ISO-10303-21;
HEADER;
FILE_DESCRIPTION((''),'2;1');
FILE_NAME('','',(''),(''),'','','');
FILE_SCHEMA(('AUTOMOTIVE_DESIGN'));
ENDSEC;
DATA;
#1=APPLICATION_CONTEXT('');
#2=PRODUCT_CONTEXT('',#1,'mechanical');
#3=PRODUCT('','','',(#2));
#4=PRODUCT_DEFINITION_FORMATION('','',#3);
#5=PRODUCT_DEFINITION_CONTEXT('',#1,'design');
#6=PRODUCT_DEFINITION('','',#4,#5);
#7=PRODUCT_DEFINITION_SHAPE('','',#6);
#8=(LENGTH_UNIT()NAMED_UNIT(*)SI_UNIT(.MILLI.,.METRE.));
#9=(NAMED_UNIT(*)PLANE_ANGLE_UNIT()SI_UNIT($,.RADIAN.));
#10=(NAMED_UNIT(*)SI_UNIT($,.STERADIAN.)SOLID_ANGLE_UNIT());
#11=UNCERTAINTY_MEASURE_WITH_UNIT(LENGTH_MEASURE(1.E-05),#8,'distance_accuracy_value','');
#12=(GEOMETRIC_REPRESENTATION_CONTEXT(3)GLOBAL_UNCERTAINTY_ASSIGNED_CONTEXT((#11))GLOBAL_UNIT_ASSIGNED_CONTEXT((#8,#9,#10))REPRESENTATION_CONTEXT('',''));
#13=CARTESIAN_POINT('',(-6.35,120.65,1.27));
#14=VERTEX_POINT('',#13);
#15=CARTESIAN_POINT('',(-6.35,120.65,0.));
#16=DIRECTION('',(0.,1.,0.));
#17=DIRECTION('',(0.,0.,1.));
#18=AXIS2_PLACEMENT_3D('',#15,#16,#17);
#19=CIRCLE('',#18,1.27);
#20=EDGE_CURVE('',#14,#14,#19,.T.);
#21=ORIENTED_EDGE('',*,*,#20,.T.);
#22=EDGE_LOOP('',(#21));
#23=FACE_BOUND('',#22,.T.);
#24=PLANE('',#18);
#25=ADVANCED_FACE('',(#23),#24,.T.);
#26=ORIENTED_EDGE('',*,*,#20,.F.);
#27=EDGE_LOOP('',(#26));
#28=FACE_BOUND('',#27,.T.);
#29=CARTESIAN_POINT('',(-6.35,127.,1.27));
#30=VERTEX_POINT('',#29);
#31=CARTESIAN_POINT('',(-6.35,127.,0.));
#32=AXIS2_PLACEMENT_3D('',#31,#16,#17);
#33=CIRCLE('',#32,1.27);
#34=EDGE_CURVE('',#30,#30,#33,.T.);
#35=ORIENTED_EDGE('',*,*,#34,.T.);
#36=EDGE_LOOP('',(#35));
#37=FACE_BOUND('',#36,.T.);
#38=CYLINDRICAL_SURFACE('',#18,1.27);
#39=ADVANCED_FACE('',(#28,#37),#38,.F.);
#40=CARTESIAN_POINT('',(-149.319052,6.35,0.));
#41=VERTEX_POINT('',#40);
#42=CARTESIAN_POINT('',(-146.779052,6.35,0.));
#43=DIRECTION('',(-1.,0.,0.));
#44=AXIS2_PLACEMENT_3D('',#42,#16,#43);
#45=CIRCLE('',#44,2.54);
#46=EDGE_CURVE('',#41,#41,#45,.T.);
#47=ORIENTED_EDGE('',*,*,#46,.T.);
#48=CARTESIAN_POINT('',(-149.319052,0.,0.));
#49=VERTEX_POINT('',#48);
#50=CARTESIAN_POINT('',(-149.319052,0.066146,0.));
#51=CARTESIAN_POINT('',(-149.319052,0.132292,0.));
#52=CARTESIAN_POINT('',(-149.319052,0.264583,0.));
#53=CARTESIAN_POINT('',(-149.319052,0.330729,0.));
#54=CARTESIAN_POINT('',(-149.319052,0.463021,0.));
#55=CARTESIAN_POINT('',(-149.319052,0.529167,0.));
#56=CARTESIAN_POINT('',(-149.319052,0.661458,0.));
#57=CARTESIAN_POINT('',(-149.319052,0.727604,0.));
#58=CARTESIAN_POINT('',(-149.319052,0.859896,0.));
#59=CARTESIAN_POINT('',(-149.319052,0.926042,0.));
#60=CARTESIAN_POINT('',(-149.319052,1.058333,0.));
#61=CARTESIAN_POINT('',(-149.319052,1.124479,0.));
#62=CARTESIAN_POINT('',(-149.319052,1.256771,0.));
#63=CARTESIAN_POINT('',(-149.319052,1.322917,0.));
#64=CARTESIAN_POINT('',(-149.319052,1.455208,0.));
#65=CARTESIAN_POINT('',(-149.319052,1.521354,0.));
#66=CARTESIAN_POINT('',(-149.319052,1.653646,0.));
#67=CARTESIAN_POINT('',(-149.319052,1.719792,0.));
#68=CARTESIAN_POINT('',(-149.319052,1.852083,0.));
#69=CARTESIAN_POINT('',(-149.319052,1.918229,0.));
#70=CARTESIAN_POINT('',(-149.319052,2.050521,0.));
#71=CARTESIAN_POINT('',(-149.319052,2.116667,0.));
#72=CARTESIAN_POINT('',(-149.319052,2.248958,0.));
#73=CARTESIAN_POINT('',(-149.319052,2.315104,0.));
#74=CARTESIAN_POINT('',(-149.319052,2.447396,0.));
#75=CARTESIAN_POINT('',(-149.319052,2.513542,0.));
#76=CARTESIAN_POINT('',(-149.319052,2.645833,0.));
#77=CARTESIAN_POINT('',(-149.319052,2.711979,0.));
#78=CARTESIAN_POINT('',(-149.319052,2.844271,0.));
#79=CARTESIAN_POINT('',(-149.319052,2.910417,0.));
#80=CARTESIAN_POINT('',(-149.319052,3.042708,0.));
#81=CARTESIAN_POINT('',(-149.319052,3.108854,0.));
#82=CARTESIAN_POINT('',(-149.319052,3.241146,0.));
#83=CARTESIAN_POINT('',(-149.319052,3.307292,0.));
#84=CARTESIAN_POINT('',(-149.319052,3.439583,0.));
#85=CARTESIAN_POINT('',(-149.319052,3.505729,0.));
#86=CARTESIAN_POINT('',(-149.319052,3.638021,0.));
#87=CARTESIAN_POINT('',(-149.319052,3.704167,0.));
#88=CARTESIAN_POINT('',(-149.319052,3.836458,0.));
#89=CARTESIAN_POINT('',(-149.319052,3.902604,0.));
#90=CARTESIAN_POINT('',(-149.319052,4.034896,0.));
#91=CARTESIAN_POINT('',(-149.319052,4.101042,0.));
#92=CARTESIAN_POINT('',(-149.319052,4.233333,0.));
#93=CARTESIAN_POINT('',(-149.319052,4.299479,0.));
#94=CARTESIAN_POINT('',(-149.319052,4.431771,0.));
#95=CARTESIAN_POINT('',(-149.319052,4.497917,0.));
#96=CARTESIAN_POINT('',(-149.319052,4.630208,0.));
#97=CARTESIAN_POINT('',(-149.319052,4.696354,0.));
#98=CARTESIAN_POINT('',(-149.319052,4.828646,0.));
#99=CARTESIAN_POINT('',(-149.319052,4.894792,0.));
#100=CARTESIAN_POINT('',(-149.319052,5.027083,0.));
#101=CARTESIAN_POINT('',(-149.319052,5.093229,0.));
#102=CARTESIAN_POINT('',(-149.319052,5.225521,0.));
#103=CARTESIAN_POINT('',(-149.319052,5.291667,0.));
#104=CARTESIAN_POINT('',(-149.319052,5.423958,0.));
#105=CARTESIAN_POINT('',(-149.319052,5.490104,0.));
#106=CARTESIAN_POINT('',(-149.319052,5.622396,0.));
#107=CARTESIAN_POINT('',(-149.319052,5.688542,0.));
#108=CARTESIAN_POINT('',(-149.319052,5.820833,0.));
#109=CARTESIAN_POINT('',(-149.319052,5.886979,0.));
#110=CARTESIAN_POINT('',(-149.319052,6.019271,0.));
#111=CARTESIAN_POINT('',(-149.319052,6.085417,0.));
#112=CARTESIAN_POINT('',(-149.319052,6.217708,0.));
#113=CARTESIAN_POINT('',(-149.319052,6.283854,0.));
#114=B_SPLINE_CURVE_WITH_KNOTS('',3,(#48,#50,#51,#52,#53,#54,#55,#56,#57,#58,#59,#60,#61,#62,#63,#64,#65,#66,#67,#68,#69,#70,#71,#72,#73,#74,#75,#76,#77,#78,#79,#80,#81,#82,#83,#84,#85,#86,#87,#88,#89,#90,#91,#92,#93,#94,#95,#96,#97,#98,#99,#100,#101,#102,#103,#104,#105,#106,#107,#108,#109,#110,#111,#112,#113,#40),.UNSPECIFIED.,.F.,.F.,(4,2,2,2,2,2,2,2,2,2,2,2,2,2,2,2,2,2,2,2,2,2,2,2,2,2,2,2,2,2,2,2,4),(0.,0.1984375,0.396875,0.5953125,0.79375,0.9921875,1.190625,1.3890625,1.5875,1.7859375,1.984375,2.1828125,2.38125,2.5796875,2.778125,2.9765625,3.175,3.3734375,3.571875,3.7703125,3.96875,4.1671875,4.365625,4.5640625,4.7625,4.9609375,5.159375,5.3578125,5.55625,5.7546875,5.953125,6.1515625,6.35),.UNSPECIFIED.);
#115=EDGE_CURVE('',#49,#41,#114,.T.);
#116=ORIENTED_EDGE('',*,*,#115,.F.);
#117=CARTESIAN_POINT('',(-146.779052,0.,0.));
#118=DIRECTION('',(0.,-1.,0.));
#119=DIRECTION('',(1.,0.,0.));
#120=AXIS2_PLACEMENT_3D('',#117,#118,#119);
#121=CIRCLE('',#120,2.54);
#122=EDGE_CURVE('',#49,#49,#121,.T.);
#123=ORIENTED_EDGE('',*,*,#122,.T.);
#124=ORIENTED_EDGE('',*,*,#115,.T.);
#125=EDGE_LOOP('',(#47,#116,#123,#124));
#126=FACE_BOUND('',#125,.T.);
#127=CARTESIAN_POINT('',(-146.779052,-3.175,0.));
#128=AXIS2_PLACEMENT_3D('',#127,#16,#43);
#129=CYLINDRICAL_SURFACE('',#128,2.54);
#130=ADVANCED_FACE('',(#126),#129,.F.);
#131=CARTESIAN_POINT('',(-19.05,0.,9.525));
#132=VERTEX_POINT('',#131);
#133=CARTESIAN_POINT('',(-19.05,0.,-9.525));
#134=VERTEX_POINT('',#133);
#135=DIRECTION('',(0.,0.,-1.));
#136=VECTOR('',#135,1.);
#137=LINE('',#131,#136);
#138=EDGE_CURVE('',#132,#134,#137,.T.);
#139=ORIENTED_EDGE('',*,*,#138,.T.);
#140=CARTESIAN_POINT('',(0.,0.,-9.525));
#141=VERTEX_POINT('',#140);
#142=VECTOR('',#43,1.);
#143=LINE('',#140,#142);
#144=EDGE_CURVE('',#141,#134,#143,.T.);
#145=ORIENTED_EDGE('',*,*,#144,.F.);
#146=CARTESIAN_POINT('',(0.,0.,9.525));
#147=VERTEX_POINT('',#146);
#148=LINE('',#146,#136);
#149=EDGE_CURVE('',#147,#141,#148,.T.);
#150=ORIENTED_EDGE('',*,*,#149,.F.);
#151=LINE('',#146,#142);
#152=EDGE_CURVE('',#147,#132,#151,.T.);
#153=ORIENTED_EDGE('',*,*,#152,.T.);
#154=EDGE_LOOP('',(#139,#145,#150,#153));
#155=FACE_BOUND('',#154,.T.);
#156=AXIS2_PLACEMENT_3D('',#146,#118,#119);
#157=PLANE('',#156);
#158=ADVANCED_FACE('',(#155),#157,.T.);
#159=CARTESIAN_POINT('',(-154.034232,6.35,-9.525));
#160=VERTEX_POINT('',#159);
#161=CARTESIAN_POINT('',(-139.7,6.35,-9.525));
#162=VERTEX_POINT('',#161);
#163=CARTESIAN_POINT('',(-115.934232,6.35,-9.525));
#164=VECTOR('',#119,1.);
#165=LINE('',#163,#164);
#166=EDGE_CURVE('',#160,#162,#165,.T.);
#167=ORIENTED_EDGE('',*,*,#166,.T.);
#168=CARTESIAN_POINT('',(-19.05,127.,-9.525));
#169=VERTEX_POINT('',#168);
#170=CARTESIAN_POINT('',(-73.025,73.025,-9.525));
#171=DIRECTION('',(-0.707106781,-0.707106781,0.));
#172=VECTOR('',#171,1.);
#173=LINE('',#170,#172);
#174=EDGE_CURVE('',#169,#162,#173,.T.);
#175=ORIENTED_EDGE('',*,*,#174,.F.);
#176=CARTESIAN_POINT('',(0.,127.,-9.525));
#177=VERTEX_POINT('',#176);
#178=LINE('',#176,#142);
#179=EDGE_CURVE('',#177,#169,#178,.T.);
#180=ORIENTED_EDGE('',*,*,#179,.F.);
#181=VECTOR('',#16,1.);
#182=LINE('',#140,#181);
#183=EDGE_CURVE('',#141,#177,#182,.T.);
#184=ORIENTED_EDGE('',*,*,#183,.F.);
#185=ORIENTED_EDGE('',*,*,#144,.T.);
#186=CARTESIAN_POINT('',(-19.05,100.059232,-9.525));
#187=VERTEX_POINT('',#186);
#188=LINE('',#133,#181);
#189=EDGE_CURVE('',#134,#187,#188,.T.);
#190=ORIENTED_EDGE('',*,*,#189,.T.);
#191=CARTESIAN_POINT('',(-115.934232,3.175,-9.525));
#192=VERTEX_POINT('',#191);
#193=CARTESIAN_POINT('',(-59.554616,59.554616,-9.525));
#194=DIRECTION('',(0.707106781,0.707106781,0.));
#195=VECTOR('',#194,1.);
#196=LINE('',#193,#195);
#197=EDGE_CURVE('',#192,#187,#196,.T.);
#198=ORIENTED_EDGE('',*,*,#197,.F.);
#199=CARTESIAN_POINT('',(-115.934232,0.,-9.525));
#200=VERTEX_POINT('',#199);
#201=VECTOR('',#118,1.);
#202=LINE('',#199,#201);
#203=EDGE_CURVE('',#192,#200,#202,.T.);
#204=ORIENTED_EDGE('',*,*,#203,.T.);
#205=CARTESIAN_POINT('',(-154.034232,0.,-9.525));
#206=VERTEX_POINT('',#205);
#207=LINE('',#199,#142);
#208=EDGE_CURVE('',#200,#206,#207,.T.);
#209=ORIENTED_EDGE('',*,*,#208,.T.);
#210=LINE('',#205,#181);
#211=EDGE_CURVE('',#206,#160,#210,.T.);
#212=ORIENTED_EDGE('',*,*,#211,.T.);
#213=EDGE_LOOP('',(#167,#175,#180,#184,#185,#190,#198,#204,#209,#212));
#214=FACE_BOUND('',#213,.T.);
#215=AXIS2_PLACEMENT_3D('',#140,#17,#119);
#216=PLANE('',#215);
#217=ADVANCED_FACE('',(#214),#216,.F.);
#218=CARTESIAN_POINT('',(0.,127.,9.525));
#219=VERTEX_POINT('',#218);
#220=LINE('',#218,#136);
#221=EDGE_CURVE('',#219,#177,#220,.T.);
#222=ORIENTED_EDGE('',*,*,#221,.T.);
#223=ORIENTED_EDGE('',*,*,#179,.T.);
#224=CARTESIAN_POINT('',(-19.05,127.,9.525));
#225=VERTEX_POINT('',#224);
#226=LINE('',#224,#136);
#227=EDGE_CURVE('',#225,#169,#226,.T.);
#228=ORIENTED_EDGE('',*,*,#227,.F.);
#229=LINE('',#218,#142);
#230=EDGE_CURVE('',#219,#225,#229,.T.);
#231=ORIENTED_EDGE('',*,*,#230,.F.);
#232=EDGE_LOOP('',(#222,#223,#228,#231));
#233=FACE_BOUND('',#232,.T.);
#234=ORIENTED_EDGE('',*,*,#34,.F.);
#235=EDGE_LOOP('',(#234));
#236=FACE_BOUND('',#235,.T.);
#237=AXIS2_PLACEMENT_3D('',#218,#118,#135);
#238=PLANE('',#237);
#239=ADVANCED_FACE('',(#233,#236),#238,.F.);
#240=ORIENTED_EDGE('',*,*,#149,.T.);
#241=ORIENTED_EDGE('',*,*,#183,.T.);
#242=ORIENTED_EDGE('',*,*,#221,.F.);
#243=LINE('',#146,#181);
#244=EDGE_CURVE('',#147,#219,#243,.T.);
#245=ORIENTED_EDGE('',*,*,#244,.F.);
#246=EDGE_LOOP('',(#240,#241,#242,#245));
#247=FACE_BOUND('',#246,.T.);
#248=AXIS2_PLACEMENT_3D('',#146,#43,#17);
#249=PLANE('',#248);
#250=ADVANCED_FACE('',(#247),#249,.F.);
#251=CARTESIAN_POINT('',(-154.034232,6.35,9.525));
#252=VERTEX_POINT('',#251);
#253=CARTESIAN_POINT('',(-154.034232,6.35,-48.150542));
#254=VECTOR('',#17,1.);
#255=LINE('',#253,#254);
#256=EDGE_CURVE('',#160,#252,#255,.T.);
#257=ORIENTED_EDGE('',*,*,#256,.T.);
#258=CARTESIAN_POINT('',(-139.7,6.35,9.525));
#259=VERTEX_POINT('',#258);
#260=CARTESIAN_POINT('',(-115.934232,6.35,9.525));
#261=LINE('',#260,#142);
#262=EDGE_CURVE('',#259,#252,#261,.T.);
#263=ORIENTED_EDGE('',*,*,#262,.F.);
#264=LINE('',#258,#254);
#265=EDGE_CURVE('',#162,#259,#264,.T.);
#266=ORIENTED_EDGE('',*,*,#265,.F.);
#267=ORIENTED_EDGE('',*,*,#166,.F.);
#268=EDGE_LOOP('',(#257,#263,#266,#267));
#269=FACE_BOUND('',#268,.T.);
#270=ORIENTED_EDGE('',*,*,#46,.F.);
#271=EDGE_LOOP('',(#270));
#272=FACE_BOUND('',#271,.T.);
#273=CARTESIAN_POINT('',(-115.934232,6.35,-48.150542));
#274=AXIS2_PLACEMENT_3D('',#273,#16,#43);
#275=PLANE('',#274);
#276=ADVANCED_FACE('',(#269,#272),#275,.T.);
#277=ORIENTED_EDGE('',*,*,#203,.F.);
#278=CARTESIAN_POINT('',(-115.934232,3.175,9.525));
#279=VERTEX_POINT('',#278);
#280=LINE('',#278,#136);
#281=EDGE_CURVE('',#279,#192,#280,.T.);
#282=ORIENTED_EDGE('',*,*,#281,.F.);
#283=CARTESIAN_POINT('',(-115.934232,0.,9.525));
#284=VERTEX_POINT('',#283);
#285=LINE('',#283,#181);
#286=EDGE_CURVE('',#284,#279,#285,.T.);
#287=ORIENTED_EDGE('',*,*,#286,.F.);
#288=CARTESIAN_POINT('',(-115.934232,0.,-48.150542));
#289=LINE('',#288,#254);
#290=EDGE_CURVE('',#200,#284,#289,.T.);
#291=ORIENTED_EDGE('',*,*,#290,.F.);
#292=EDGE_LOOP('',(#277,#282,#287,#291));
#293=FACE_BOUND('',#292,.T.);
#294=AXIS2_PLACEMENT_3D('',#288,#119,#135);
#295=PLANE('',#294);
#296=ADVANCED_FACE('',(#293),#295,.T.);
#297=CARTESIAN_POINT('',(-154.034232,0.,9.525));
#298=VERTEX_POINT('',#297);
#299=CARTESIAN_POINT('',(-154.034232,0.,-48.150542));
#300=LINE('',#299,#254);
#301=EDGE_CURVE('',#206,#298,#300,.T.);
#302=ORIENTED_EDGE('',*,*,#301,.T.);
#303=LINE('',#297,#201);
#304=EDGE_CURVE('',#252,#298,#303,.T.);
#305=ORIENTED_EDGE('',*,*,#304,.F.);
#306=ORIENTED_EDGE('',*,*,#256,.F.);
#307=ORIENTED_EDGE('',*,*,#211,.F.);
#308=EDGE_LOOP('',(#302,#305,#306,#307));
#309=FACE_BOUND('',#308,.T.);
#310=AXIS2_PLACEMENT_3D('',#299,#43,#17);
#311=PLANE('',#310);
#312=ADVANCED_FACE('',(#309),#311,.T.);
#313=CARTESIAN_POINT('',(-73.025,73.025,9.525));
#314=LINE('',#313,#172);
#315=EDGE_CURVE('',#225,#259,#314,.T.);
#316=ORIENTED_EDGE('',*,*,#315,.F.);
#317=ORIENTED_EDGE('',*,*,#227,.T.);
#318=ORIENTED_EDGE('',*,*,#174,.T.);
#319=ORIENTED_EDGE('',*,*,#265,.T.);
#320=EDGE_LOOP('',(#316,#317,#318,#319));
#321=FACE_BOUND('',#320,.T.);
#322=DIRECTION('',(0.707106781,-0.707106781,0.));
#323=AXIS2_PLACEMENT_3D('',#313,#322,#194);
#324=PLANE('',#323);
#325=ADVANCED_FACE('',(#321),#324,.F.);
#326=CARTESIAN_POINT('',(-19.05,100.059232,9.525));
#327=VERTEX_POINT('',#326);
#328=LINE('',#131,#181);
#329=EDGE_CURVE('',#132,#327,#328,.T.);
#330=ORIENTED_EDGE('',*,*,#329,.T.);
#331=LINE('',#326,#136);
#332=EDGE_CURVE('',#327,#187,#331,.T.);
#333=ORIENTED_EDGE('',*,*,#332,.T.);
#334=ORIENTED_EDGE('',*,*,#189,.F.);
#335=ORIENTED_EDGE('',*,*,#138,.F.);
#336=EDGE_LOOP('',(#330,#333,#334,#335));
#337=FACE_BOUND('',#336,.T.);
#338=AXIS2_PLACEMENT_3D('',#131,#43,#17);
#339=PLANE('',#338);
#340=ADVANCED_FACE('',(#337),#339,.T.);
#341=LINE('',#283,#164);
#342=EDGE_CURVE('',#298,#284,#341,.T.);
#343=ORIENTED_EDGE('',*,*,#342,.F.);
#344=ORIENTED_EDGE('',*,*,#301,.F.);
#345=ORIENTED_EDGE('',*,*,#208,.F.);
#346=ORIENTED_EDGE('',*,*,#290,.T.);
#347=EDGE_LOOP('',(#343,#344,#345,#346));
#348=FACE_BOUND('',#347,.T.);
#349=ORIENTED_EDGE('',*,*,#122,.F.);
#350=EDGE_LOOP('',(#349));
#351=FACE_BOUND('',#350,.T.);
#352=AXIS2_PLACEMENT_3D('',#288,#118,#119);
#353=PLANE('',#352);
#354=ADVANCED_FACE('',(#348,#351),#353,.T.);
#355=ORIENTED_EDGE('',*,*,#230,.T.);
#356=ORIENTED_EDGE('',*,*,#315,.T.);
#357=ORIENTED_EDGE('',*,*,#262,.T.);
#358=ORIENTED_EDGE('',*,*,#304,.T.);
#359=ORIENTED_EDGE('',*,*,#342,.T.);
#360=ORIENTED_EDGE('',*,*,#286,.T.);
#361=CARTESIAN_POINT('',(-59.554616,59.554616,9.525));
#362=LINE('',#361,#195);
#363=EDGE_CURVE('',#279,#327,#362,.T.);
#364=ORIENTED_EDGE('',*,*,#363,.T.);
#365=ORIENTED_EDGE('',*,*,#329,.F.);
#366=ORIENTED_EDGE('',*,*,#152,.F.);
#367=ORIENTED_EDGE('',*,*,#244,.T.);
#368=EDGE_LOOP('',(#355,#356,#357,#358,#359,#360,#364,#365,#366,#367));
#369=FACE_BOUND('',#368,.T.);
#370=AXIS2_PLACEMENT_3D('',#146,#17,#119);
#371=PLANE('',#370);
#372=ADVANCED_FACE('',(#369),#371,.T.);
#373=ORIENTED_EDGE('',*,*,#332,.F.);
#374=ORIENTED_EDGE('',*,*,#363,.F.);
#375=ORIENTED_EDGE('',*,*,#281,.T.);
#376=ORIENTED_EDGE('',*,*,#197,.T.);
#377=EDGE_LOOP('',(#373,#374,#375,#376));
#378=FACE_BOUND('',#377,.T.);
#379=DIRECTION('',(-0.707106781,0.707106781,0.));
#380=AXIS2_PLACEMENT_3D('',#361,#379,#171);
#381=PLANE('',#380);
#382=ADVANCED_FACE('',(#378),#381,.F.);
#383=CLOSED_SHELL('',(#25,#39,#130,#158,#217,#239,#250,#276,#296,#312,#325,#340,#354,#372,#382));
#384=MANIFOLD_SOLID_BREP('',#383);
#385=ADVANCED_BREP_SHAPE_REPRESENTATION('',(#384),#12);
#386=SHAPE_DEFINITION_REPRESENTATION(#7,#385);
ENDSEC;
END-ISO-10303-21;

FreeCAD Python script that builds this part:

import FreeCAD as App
import Part
import Sketcher
from FreeCAD import Vector
Q = App.Units.Quantity


def add_polygon(sketch, points):
    """Adds a closed chain of lines whose ends are joined by coincident constraints."""
    first, n = sketch.GeometryCount, len(points)
    for a, b in zip(points, points[1:] + points[:1]):
        sketch.addGeometry(Part.LineSegment(App.Vector(*a, 0), App.Vector(*b, 0)), False)
    for i in range(n):
        sketch.addConstraint(Sketcher.Constraint("Coincident", first + i, 2, first + (i + 1) % n, 1))

doc = App.newDocument("Part")
body = doc.addObject("PartDesign::Body", "Body")

# Sketch on XY plane
sketch1 = doc.addObject("Sketcher::SketchObject", "Sketch")
body.addObject(sketch1)
sketch1.AttachmentSupport = (doc.XY_Plane, [""])
sketch1.MapMode = "FlatFace"
add_polygon(sketch1, [(0, 127), (-19, 127), (-143, 3), (-116, 3), (-19, 100), (-19, 0), (0, 0)])  # lines 0-6
sketch1.addConstraint(Sketcher.Constraint("Horizontal", 0))
sketch1.addConstraint(Sketcher.Constraint("Horizontal", 2))
sketch1.addConstraint(Sketcher.Constraint("Vertical", 4))
sketch1.addConstraint(Sketcher.Constraint("Horizontal", 5))
sketch1.addConstraint(Sketcher.Constraint("Vertical", 6))
sketch1.addConstraint(Sketcher.Constraint("Coincident", 5, 2, -1, 1))
sketch1.addConstraint(Sketcher.Constraint("Parallel", 1, 3))
sketch1.addConstraint(Sketcher.Constraint("Vertical", 0, 2, 3, 2))
sketch1.addConstraint(Sketcher.Constraint("DistanceY", 6, 1, 6, 2, Q("5 in")))
sketch1.addConstraint(Sketcher.Constraint("Angle", 1, Q("-135 deg")))
sketch1.addConstraint(Sketcher.Constraint("DistanceX", 0, 2, 0, 1, Q("0.75 in")))
sketch1.addConstraint(Sketcher.Constraint("DistanceX", 1, 2, -1, 1, Q("5.625 in")))
sketch1.addConstraint(Sketcher.Constraint("DistanceX", 2, 1, 2, 2, 26.940768))
pad1 = doc.addObject("PartDesign::Pad", "Pad")
body.addObject(pad1)
pad1.Profile = sketch1
pad1.Length = Q("0.75 in")
pad1.Midplane = True

# Sketch on XZ plane
sketch2 = doc.addObject("Sketcher::SketchObject", "Sketch001")
body.addObject(sketch2)
sketch2.AttachmentSupport = (doc.XZ_Plane, [""])
sketch2.MapMode = "FlatFace"
sketch2.AttachmentOffset = App.Placement(Vector(0, 0, -5 * 25.4), App.Rotation())
sketch2.addGeometry(Part.Circle(Vector(-6.3, 0, 0), Vector(0, 0, 1), 1.3), False)
sketch2.addConstraint(Sketcher.Constraint("PointOnObject", 0, 3, -1))
sketch2.addConstraint(Sketcher.Constraint("Diameter", 0, Q("0.1 in")))
sketch2.addConstraint(Sketcher.Constraint("DistanceX", 0, 3, -1, 1, Q("0.25 in")))
pocket1 = doc.addObject("PartDesign::Pocket", "Pocket")
body.addObject(pocket1)
pocket1.Profile = sketch2
pocket1.Length = Q("0.25 in")
pocket1.Reversed = True

# Sketch on XY plane
sketch3 = doc.addObject("Sketcher::SketchObject", "Sketch002")
body.addObject(sketch3)
sketch3.AttachmentSupport = (doc.XY_Plane, [""])
sketch3.MapMode = "FlatFace"
sketch3.AttachmentOffset = App.Placement(Vector(0, 0, 0.375 * 25.4), App.Rotation())
add_polygon(sketch3, [(-154, 6), (-154, 0), (-116, 0), (-116, 6)])  # lines 0-3
sketch3.addConstraint(Sketcher.Constraint("Vertical", 0))
sketch3.addConstraint(Sketcher.Constraint("Horizontal", 1))
sketch3.addConstraint(Sketcher.Constraint("Vertical", 2))
sketch3.addConstraint(Sketcher.Constraint("Horizontal", 3))
sketch3.addConstraint(Sketcher.Constraint("PointOnObject", 0, 2, -1))
sketch3.addConstraint(Sketcher.Constraint("DistanceX", 1, 1, 1, 2, Q("1.5 in")))
sketch3.addConstraint(Sketcher.Constraint("DistanceY", 0, 2, 0, 1, Q("0.25 in")))
sketch3.addConstraint(Sketcher.Constraint("DistanceX", 0, 2, -1, 1, 154.034232))
pad2 = doc.addObject("PartDesign::Pad", "Pad001")
body.addObject(pad2)
pad2.Profile = sketch3
pad2.Length = Q("0.75 in")
pad2.Reversed = True

# Sketch on XZ plane
sketch4 = doc.addObject("Sketcher::SketchObject", "Sketch003")
body.addObject(sketch4)
sketch4.AttachmentSupport = (doc.XZ_Plane, [""])
sketch4.MapMode = "FlatFace"
sketch4.AttachmentOffset = App.Placement(Vector(0, 0, -0.25 * 25.4), App.Rotation())
sketch4.addGeometry(Part.Circle(Vector(-146.8, 0, 0), Vector(0, 0, 1), 2.5), False)
sketch4.addConstraint(Sketcher.Constraint("PointOnObject", 0, 3, -1))
sketch4.addConstraint(Sketcher.Constraint("Diameter", 0, Q("0.2 in")))
sketch4.addConstraint(Sketcher.Constraint("DistanceX", 0, 3, -1, 1, 146.779052))
pocket2 = doc.addObject("PartDesign::Pocket", "Pocket001")
body.addObject(pocket2)
pocket2.Profile = sketch4
pocket2.Length = Q("0.375 in")
pocket2.Reversed = True

doc.recompute()
